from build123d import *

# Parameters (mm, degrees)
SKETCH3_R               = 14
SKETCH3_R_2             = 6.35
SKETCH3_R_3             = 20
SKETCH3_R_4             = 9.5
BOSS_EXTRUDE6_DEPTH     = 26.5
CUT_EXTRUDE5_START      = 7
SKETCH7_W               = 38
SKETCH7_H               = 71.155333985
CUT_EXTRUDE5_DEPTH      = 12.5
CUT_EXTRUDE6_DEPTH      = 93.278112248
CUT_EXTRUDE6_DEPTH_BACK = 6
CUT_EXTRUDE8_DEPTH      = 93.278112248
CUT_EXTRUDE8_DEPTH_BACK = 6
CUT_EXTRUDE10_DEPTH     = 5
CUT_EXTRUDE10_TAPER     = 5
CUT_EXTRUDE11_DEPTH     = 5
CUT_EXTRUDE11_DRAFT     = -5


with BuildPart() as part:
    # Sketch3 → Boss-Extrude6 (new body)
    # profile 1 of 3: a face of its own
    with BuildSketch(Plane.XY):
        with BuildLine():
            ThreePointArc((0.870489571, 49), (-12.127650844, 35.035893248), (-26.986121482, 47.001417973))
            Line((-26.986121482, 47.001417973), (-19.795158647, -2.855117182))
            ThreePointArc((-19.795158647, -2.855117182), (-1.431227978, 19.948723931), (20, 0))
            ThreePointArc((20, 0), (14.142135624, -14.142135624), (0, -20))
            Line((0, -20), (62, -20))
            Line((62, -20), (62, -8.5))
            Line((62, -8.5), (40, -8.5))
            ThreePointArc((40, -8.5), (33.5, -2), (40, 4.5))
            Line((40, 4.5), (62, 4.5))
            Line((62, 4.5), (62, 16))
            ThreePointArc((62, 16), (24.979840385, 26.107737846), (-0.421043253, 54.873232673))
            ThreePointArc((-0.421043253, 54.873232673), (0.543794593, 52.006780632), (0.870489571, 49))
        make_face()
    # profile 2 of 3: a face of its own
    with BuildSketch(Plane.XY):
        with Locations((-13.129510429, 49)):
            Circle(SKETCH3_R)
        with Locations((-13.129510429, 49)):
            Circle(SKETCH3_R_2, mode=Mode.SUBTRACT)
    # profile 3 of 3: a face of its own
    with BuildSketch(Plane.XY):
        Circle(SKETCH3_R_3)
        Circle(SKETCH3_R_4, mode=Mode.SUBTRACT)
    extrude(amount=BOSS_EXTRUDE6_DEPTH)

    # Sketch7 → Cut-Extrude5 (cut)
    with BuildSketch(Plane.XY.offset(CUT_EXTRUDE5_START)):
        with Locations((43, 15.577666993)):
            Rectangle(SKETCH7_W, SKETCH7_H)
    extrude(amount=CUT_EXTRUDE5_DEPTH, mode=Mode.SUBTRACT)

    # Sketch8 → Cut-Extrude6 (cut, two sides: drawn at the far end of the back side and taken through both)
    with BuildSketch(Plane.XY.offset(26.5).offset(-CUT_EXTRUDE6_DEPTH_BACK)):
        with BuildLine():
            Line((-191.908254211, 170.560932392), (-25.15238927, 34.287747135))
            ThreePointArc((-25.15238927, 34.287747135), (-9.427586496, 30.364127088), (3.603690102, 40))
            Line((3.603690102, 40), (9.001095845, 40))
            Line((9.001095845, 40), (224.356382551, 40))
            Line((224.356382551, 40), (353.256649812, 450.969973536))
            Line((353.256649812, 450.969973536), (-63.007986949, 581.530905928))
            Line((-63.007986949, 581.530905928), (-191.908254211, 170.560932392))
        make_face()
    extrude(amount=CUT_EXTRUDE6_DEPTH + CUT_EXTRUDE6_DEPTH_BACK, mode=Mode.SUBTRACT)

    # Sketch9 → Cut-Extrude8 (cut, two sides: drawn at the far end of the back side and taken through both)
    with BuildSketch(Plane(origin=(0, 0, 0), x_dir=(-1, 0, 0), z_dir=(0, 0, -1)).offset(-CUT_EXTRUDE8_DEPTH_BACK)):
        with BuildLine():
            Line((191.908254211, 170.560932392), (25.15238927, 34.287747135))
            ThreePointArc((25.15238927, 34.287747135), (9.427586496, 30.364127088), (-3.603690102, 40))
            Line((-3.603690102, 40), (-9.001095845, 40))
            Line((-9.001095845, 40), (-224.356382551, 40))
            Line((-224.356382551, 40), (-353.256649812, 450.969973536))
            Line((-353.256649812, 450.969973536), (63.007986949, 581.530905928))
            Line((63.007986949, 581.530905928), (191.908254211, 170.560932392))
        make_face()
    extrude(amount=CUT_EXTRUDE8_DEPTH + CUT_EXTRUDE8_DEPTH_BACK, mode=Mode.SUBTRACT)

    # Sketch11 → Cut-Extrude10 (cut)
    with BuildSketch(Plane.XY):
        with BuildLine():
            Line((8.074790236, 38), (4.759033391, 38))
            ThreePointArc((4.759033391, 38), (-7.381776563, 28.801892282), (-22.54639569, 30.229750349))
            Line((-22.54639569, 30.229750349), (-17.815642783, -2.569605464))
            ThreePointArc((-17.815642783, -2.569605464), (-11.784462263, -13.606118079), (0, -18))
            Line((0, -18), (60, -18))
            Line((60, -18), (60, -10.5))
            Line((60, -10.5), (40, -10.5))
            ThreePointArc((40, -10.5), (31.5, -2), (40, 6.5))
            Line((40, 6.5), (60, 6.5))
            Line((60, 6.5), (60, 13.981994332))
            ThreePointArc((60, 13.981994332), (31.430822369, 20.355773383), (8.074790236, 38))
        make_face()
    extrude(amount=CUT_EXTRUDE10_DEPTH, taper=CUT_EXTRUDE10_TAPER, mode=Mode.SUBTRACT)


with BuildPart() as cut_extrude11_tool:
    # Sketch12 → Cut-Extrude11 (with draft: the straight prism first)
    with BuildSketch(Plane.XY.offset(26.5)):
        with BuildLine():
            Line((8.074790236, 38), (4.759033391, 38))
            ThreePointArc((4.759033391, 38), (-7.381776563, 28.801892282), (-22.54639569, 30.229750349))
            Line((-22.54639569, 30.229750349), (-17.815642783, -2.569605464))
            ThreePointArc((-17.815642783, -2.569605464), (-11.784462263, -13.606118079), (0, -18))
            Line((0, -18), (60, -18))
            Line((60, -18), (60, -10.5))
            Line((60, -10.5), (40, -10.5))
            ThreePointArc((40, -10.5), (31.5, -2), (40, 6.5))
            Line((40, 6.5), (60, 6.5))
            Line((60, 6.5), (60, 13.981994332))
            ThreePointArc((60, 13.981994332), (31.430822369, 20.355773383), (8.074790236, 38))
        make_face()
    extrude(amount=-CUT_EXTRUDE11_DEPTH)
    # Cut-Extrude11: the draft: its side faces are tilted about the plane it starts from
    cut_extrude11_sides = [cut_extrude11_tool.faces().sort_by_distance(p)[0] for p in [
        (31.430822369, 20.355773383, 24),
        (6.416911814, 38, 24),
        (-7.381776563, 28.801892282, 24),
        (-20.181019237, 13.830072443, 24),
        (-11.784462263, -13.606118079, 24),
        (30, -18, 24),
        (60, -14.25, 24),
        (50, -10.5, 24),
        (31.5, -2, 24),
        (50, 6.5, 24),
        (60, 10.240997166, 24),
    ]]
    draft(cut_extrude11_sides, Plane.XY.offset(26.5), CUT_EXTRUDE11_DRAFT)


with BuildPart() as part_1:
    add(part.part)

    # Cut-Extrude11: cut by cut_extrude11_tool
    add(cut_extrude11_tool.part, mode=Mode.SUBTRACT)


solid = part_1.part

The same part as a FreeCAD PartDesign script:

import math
import FreeCAD as App
import Part
import Sketcher
Q = App.Units.Quantity


def faces_at(feature, points):
    """Names of the faces that lie closest to the given points."""
    faces = feature.Shape.Faces
    near = lambda p: min(range(len(faces)), key=lambda i: faces[i].distToShape(Part.Vertex(*p))[0])
    return sorted({f"Face{near(p) + 1}" for p in points})

doc = App.newDocument("Part")
body = doc.addObject("PartDesign::Body", "Body")

# Sketch on XY plane
sketch1 = body.newObject("Sketcher::SketchObject", "Sketch")
sketch1.AttachmentSupport = (doc.getObject("XY_Plane"), [""])
sketch1.MapMode = "FlatFace"
sketch1.addGeometry([
    Part.LineSegment(App.Vector(-27, 47, 0), App.Vector(-20, -3, 0)),  # 0
    Part.ArcOfCircle(Part.Circle(App.Vector(0, 0, 0), App.Vector(0, 0, 1), 20), math.radians(-172), math.radians(-90)),  # 1
    Part.LineSegment(App.Vector(0, -20, 0), App.Vector(62, -20, 0)),  # 2
    Part.LineSegment(App.Vector(62, -20, 0), App.Vector(62, -8, 0)),  # 3
    Part.LineSegment(App.Vector(62, -8, 0), App.Vector(40, -8, 0)),  # 4
    Part.ArcOfCircle(Part.Circle(App.Vector(40, -2, 0), App.Vector(0, 0, 1), 6), math.radians(90), math.radians(270)),  # 5
    Part.LineSegment(App.Vector(40, 4, 0), App.Vector(62, 4, 0)),  # 6
    Part.LineSegment(App.Vector(62, 4, 0), App.Vector(62, 16, 0)),  # 7
    Part.ArcOfCircle(Part.Circle(App.Vector(60, 83, 0), App.Vector(0, 0, 1), 67), math.radians(-155), math.radians(-89)),  # 8
    Part.ArcOfCircle(Part.Circle(App.Vector(-13, 49, 0), App.Vector(0, 0, 1), 14), math.radians(25), math.radians(188)),  # 9
    Part.Circle(App.Vector(-13, 49, 0), App.Vector(0, 0, 1), 6),  # 10
    Part.Circle(App.Vector(0, 0, 0), App.Vector(0, 0, 1), 10),  # 11
], False)
sketch1.addConstraint([
    Sketcher.Constraint("Tangent", 0, 2, 1, 1),
    Sketcher.Constraint("Tangent", 1, 2, 2, 1),
    Sketcher.Constraint("Coincident", 2, 2, 3, 1),
    Sketcher.Constraint("Coincident", 3, 2, 4, 1),
    Sketcher.Constraint("Tangent", 4, 2, 5, 2),
    Sketcher.Constraint("Tangent", 5, 1, 6, 1),
    Sketcher.Constraint("Coincident", 6, 2, 7, 1),
    Sketcher.Constraint("Coincident", 7, 2, 8, 2),
    Sketcher.Constraint("Tangent", 8, 1, 9, 1),
    Sketcher.Constraint("Tangent", 9, 2, 0, 1),
    Sketcher.Constraint("Horizontal", 2),
    Sketcher.Constraint("Vertical", 3),
    Sketcher.Constraint("Horizontal", 4),
    Sketcher.Constraint("Horizontal", 6),
    Sketcher.Constraint("Vertical", 7),
    Sketcher.Constraint("Coincident", 1, 3, -1, 1),
    Sketcher.Constraint("Coincident", 11, 3, -1, 1),
    Sketcher.Constraint("Coincident", 10, 3, 9, 3),
    Sketcher.Constraint("Vertical", 3, 2, 6, 2),
    Sketcher.Constraint("Equal", 3, 7),
    Sketcher.Constraint("Diameter", 11, Q("19 mm")),
    Sketcher.Constraint("Radius", 1, Q("20 mm")),
    Sketcher.Constraint("Radius", 8, Q("67 mm")),
    Sketcher.Constraint("Radius", 9, Q("14 mm")),
    Sketcher.Constraint("Diameter", 10, Q("12.7 mm")),
    Sketcher.Constraint("Radius", 5, Q("6.5 mm")),
    Sketcher.Constraint("DistanceX", 2, 1, 2, 2, Q("62 mm")),
    Sketcher.Constraint("DistanceX", 4, 2, 4, 1, Q("22 mm")),
    Sketcher.Constraint("DistanceY", 3, 1, 3, 2, Q("11.5 mm")),
    Sketcher.Constraint("DistanceY", -1, 1, 9, 3, Q("49 mm")),
    Sketcher.Constraint("DistanceX", -1, 1, 8, 3, Q("60.39805 mm")),
])
pad1 = body.newObject("PartDesign::Pad", "Pad")
pad1.Profile = sketch1
pad1.Length = 26.5

# Sketch on XY plane
sketch2 = body.newObject("Sketcher::SketchObject", "Sketch001")
sketch2.AttachmentSupport = (doc.getObject("XY_Plane"), [""])
sketch2.MapMode = "FlatFace"
sketch2.AttachmentOffset = App.Placement(App.Vector(0, 0, 7), App.Rotation())
sketch2.addGeometry([
    Part.LineSegment(App.Vector(24, 51, 0), App.Vector(24, -20, 0)),
    Part.LineSegment(App.Vector(24, -20, 0), App.Vector(62, -20, 0)),
    Part.LineSegment(App.Vector(62, -20, 0), App.Vector(62, 51, 0)),
    Part.LineSegment(App.Vector(62, 51, 0), App.Vector(24, 51, 0)),
], False)
sketch2.addConstraint([
    Sketcher.Constraint("Coincident", 0, 2, 1, 1),
    Sketcher.Constraint("Coincident", 1, 2, 2, 1),
    Sketcher.Constraint("Coincident", 2, 2, 3, 1),
    Sketcher.Constraint("Coincident", 3, 2, 0, 1),
    Sketcher.Constraint("Vertical", 0),
    Sketcher.Constraint("Horizontal", 1),
    Sketcher.Constraint("Vertical", 2),
    Sketcher.Constraint("Horizontal", 3),
    Sketcher.Constraint("DistanceX", 1, 1, 1, 2, Q("38 mm")),
    Sketcher.Constraint("DistanceX", -1, 1, 0, 2, Q("24 mm")),
    Sketcher.Constraint("DistanceY", 0, 2, -1, 1, Q("20 mm")),
    Sketcher.Constraint("DistanceY", 0, 2, 0, 1, Q("71.155334 mm")),
])
pocket1 = body.newObject("PartDesign::Pocket", "Pocket")
pocket1.Profile = sketch2
pocket1.Length = 12.5
pocket1.Reversed = True

# Sketch on XY plane
sketch3 = body.newObject("Sketcher::SketchObject", "Sketch002")
sketch3.AttachmentSupport = (doc.getObject("XY_Plane"), [""])
sketch3.MapMode = "FlatFace"
sketch3.AttachmentOffset = App.Placement(App.Vector(0, 0, 26.5), App.Rotation())
sketch3.addGeometry([
    Part.LineSegment(App.Vector(-192, 171, 0), App.Vector(-25, 34, 0)),  # 0
    Part.ArcOfCircle(Part.Circle(App.Vector(-13, 49, 0), App.Vector(0, 0, 1), 19), math.radians(-129), math.radians(-28)),  # 1
    Part.LineSegment(App.Vector(4, 40, 0), App.Vector(224, 40, 0)),  # 2
    Part.LineSegment(App.Vector(224, 40, 0), App.Vector(353, 451, 0)),  # 3
    Part.LineSegment(App.Vector(353, 451, 0), App.Vector(-63, 582, 0)),  # 4
    Part.LineSegment(App.Vector(-63, 582, 0), App.Vector(-192, 171, 0)),  # 5
], False)
sketch3.addConstraint([
    Sketcher.Constraint("Tangent", 0, 2, 1, 1),
    Sketcher.Constraint("Coincident", 1, 2, 2, 1),
    Sketcher.Constraint("Coincident", 2, 2, 3, 1),
    Sketcher.Constraint("Coincident", 3, 2, 4, 1),
    Sketcher.Constraint("Coincident", 4, 2, 5, 1),
    Sketcher.Constraint("Coincident", 5, 2, 0, 1),
    Sketcher.Constraint("Horizontal", 2),
    Sketcher.Constraint("Perpendicular", 3, 4),
    Sketcher.Constraint("Perpendicular", 4, 5),
    Sketcher.Constraint("Equal", 3, 5),
    Sketcher.Constraint("Radius", 1, Q("19 mm")),
    Sketcher.Constraint("DistanceY", -1, 1, 1, 3, Q("49 mm")),
    Sketcher.Constraint("DistanceY", -1, 1, 1, 2, Q("40 mm")),
    Sketcher.Constraint("Distance", 4, Q("436.259561 mm")),
    Sketcher.Constraint("DistanceX", 2, 1, 2, 2, Q("220.752692 mm")),
    Sketcher.Constraint("DistanceX", 1, 3, -1, 1, Q("13.12951 mm")),
    Sketcher.Constraint("DistanceX", 0, 2, -1, 1, Q("25.152389 mm")),
    Sketcher.Constraint("DistanceX", -1, 1, 3, 2, Q("353.25665 mm")),
])
pocket2 = body.newObject("PartDesign::Pocket", "Pocket001")
pocket2.Profile = sketch3
pocket2.Type = "TwoLengths"
pocket2.Length = 93.278112
pocket2.Length2 = 6
pocket2.Reversed = True

# Sketch on XY plane
sketch4 = body.newObject("Sketcher::SketchObject", "Sketch003")
sketch4.AttachmentSupport = (doc.getObject("XY_Plane"), [""])
sketch4.MapMode = "FlatFace"
sketch4.addGeometry([
    Part.LineSegment(App.Vector(-25, 34, 0), App.Vector(-192, 171, 0)),  # 0
    Part.LineSegment(App.Vector(-192, 171, 0), App.Vector(-63, 582, 0)),  # 1
    Part.LineSegment(App.Vector(-63, 582, 0), App.Vector(353, 451, 0)),  # 2
    Part.LineSegment(App.Vector(353, 451, 0), App.Vector(224, 40, 0)),  # 3
    Part.LineSegment(App.Vector(224, 40, 0), App.Vector(4, 40, 0)),  # 4
    Part.ArcOfCircle(Part.Circle(App.Vector(-13, 49, 0), App.Vector(0, 0, 1), 19), math.radians(-129), math.radians(-28)),  # 5
], False)
sketch4.addConstraint([
    Sketcher.Constraint("Coincident", 0, 2, 1, 1),
    Sketcher.Constraint("Coincident", 1, 2, 2, 1),
    Sketcher.Constraint("Coincident", 2, 2, 3, 1),
    Sketcher.Constraint("Coincident", 3, 2, 4, 1),
    Sketcher.Constraint("Coincident", 4, 2, 5, 2),
    Sketcher.Constraint("Tangent", 5, 1, 0, 1),
    Sketcher.Constraint("Horizontal", 4),
    Sketcher.Constraint("Perpendicular", 1, 2),
    Sketcher.Constraint("Perpendicular", 2, 3),
    Sketcher.Constraint("Equal", 1, 3),
    Sketcher.Constraint("Radius", 5, Q("19 mm")),
    Sketcher.Constraint("DistanceY", -1, 1, 5, 3, Q("49 mm")),
    Sketcher.Constraint("DistanceY", -1, 1, 3, 2, Q("40 mm")),
    Sketcher.Constraint("Distance", 2, Q("436.259561 mm")),
    Sketcher.Constraint("DistanceX", 4, 2, 4, 1, Q("220.752692 mm")),
    Sketcher.Constraint("DistanceX", 5, 3, -1, 1, Q("13.12951 mm")),
    Sketcher.Constraint("DistanceX", -1, 1, 2, 2, Q("353.25665 mm")),
    Sketcher.Constraint("DistanceY", 0, 2, 2, 2, Q("280.409041 mm")),
])
pocket3 = body.newObject("PartDesign::Pocket", "Pocket002")
pocket3.Profile = sketch4
pocket3.Type = "TwoLengths"
pocket3.Length = 93.278112
pocket3.Length2 = 6

# Sketch on XY plane
sketch5 = body.newObject("Sketcher::SketchObject", "Sketch004")
sketch5.AttachmentSupport = (doc.getObject("XY_Plane"), [""])
sketch5.MapMode = "FlatFace"
sketch5.addGeometry([
    Part.LineSegment(App.Vector(8.1, 38, 0), App.Vector(4.8, 38, 0)),  # 0
    Part.ArcOfCircle(Part.Circle(App.Vector(-13.1, 49, 0), App.Vector(0, 0, 1), 21), math.radians(-117), math.radians(-32)),  # 1
    Part.LineSegment(App.Vector(-22.5, 30.2, 0), App.Vector(-17.8, -2.6, 0)),  # 2
    Part.ArcOfCircle(Part.Circle(App.Vector(0, 0, 0), App.Vector(0, 0, 1), 18), math.radians(-172), math.radians(-90)),  # 3
    Part.LineSegment(App.Vector(0, -18, 0), App.Vector(60, -18, 0)),  # 4
    Part.LineSegment(App.Vector(60, -18, 0), App.Vector(60, -10.5, 0)),  # 5
    Part.LineSegment(App.Vector(60, -10.5, 0), App.Vector(40, -10.5, 0)),  # 6
    Part.ArcOfCircle(Part.Circle(App.Vector(40, -2, 0), App.Vector(0, 0, 1), 8.5), math.radians(90), math.radians(270)),  # 7
    Part.LineSegment(App.Vector(40, 6.5, 0), App.Vector(60, 6.5, 0)),  # 8
    Part.LineSegment(App.Vector(60, 6.5, 0), App.Vector(60, 14, 0)),  # 9
    Part.ArcOfCircle(Part.Circle(App.Vector(60.4, 83, 0), App.Vector(0, 0, 1), 69), math.radians(-139), math.radians(-90)),  # 10
], False)
sketch5.addConstraint([
    Sketcher.Constraint("Coincident", 0, 2, 1, 2),
    Sketcher.Constraint("Coincident", 1, 1, 2, 1),
    Sketcher.Constraint("Tangent", 2, 2, 3, 1),
    Sketcher.Constraint("Tangent", 3, 2, 4, 1),
    Sketcher.Constraint("Coincident", 4, 2, 5, 1),
    Sketcher.Constraint("Coincident", 5, 2, 6, 1),
    Sketcher.Constraint("Tangent", 6, 2, 7, 2),
    Sketcher.Constraint("Tangent", 7, 1, 8, 1),
    Sketcher.Constraint("Coincident", 8, 2, 9, 1),
    Sketcher.Constraint("Coincident", 9, 2, 10, 2),
    Sketcher.Constraint("Coincident", 10, 1, 0, 1),
    Sketcher.Constraint("Horizontal", 0),
    Sketcher.Constraint("Horizontal", 4),
    Sketcher.Constraint("Vertical", 5),
    Sketcher.Constraint("Horizontal", 6),
    Sketcher.Constraint("Horizontal", 8),
    Sketcher.Constraint("Vertical", 9),
    Sketcher.Constraint("Coincident", 3, 3, -1, 1),
    Sketcher.Constraint("Vertical", 5, 2, 8, 2),
    Sketcher.Constraint("Radius", 1, Q("21 mm")),
    Sketcher.Constraint("Radius", 3, Q("18 mm")),
    Sketcher.Constraint("Radius", 10, Q("69 mm")),
    Sketcher.Constraint("Radius", 7, Q("8.5 mm")),
    Sketcher.Constraint("DistanceX", 4, 1, 4, 2, Q("60 mm")),
    Sketcher.Constraint("DistanceX", 6, 2, 6, 1, Q("20 mm")),
    Sketcher.Constraint("DistanceY", 5, 1, 5, 2, Q("7.5 mm")),
    Sketcher.Constraint("DistanceY", -1, 1, 1, 3, Q("49 mm")),
    Sketcher.Constraint("DistanceY", -1, 1, 0, 2, Q("38 mm")),
    Sketcher.Constraint("DistanceX", 1, 3, 10, 1, Q("21.204301 mm")),
    Sketcher.Constraint("DistanceY", 9, 1, 9, 2, Q("7.481994 mm")),
    Sketcher.Constraint("DistanceX", 1, 3, -1, 1, Q("13.12951 mm")),
    Sketcher.Constraint("DistanceY", -1, 1, 1, 1, Q("30.22975 mm")),
])
pocket4 = body.newObject("PartDesign::Pocket", "Pocket003")
pocket4.Profile = sketch5
pocket4.Length = 5
pocket4.Reversed = True
pocket4.TaperAngle = -5
body2 = doc.addObject("PartDesign::Body", "Body001")

# Sketch on XY plane
sketch6 = body2.newObject("Sketcher::SketchObject", "Sketch005")
sketch6.AttachmentSupport = (doc.getObject("XY_Plane001"), [""])
sketch6.MapMode = "FlatFace"
sketch6.AttachmentOffset = App.Placement(App.Vector(0, 0, 26.5), App.Rotation())
sketch6.addGeometry([
    Part.LineSegment(App.Vector(8.1, 38, 0), App.Vector(4.8, 38, 0)),  # 0
    Part.ArcOfCircle(Part.Circle(App.Vector(-13.1, 49, 0), App.Vector(0, 0, 1), 21), math.radians(-117), math.radians(-32)),  # 1
    Part.LineSegment(App.Vector(-22.5, 30.2, 0), App.Vector(-17.8, -2.6, 0)),  # 2
    Part.ArcOfCircle(Part.Circle(App.Vector(0, 0, 0), App.Vector(0, 0, 1), 18), math.radians(-172), math.radians(-90)),  # 3
    Part.LineSegment(App.Vector(0, -18, 0), App.Vector(60, -18, 0)),  # 4
    Part.LineSegment(App.Vector(60, -18, 0), App.Vector(60, -10.5, 0)),  # 5
    Part.LineSegment(App.Vector(60, -10.5, 0), App.Vector(40, -10.5, 0)),  # 6
    Part.ArcOfCircle(Part.Circle(App.Vector(40, -2, 0), App.Vector(0, 0, 1), 8.5), math.radians(90), math.radians(270)),  # 7
    Part.LineSegment(App.Vector(40, 6.5, 0), App.Vector(60, 6.5, 0)),  # 8
    Part.LineSegment(App.Vector(60, 6.5, 0), App.Vector(60, 14, 0)),  # 9
    Part.ArcOfCircle(Part.Circle(App.Vector(60.4, 83, 0), App.Vector(0, 0, 1), 69), math.radians(-139), math.radians(-90)),  # 10
], False)
sketch6.addConstraint([
    Sketcher.Constraint("Coincident", 0, 2, 1, 2),
    Sketcher.Constraint("Coincident", 1, 1, 2, 1),
    Sketcher.Constraint("Tangent", 2, 2, 3, 1),
    Sketcher.Constraint("Tangent", 3, 2, 4, 1),
    Sketcher.Constraint("Coincident", 4, 2, 5, 1),
    Sketcher.Constraint("Coincident", 5, 2, 6, 1),
    Sketcher.Constraint("Tangent", 6, 2, 7, 2),
    Sketcher.Constraint("Tangent", 7, 1, 8, 1),
    Sketcher.Constraint("Coincident", 8, 2, 9, 1),
    Sketcher.Constraint("Coincident", 9, 2, 10, 2),
    Sketcher.Constraint("Coincident", 10, 1, 0, 1),
    Sketcher.Constraint("Horizontal", 0),
    Sketcher.Constraint("Horizontal", 4),
    Sketcher.Constraint("Vertical", 5),
    Sketcher.Constraint("Horizontal", 6),
    Sketcher.Constraint("Horizontal", 8),
    Sketcher.Constraint("Vertical", 9),
    Sketcher.Constraint("Coincident", 3, 3, -1, 1),
    Sketcher.Constraint("Vertical", 5, 2, 8, 2),
    Sketcher.Constraint("Radius", 1, Q("21 mm")),
    Sketcher.Constraint("Radius", 3, Q("18 mm")),
    Sketcher.Constraint("Radius", 10, Q("69 mm")),
    Sketcher.Constraint("Radius", 7, Q("8.5 mm")),
    Sketcher.Constraint("DistanceX", 4, 1, 4, 2, Q("60 mm")),
    Sketcher.Constraint("DistanceX", 6, 2, 6, 1, Q("20 mm")),
    Sketcher.Constraint("DistanceY", 5, 1, 5, 2, Q("7.5 mm")),
    Sketcher.Constraint("DistanceY", -1, 1, 1, 3, Q("49 mm")),
    Sketcher.Constraint("DistanceY", -1, 1, 0, 2, Q("38 mm")),
    Sketcher.Constraint("DistanceX", 1, 3, 10, 1, Q("21.204301 mm")),
    Sketcher.Constraint("DistanceY", 9, 1, 9, 2, Q("7.481994 mm")),
    Sketcher.Constraint("DistanceX", 1, 3, -1, 1, Q("13.12951 mm")),
    Sketcher.Constraint("DistanceY", -1, 1, 1, 1, Q("30.22975 mm")),
])
pad2 = body2.newObject("PartDesign::Pad", "Pad001")
pad2.Profile = sketch6
pad2.Length = 5
pad2.Reversed = True
doc.recompute()

datumplane = body2.newObject("PartDesign::Plane", "DatumPlane")
datumplane.AttachmentSupport = (doc.getObject("XY_Plane001"), [""])
datumplane.MapMode = "FlatFace"
datumplane.AttachmentOffset = App.Placement(App.Vector(0, 0, 26.5), App.Rotation())
draft = body2.newObject("PartDesign::Draft", "Draft")
draft.Base = (pad2, faces_at(pad2, [
    (31.431, 20.356, 24),
    (6.417, 38, 24),
    (-7.382, 28.802, 24),
    (-20.181, 13.83, 24),
    (-11.784, -13.606, 24),
    (30, -18, 24),
    (60, -14.25, 24),
    (50, -10.5, 24),
    (31.5, -2, 24),
    (50, 6.5, 24),
    (60, 10.241, 24),
]))
draft.NeutralPlane = (datumplane, [""])
draft.Angle = 5
draft.Reversed = True
doc.recompute()

boolean = body.newObject("PartDesign::Boolean", "Boolean")
boolean.Type = "Cut"
boolean.addObjects([body2])

doc.recompute()
